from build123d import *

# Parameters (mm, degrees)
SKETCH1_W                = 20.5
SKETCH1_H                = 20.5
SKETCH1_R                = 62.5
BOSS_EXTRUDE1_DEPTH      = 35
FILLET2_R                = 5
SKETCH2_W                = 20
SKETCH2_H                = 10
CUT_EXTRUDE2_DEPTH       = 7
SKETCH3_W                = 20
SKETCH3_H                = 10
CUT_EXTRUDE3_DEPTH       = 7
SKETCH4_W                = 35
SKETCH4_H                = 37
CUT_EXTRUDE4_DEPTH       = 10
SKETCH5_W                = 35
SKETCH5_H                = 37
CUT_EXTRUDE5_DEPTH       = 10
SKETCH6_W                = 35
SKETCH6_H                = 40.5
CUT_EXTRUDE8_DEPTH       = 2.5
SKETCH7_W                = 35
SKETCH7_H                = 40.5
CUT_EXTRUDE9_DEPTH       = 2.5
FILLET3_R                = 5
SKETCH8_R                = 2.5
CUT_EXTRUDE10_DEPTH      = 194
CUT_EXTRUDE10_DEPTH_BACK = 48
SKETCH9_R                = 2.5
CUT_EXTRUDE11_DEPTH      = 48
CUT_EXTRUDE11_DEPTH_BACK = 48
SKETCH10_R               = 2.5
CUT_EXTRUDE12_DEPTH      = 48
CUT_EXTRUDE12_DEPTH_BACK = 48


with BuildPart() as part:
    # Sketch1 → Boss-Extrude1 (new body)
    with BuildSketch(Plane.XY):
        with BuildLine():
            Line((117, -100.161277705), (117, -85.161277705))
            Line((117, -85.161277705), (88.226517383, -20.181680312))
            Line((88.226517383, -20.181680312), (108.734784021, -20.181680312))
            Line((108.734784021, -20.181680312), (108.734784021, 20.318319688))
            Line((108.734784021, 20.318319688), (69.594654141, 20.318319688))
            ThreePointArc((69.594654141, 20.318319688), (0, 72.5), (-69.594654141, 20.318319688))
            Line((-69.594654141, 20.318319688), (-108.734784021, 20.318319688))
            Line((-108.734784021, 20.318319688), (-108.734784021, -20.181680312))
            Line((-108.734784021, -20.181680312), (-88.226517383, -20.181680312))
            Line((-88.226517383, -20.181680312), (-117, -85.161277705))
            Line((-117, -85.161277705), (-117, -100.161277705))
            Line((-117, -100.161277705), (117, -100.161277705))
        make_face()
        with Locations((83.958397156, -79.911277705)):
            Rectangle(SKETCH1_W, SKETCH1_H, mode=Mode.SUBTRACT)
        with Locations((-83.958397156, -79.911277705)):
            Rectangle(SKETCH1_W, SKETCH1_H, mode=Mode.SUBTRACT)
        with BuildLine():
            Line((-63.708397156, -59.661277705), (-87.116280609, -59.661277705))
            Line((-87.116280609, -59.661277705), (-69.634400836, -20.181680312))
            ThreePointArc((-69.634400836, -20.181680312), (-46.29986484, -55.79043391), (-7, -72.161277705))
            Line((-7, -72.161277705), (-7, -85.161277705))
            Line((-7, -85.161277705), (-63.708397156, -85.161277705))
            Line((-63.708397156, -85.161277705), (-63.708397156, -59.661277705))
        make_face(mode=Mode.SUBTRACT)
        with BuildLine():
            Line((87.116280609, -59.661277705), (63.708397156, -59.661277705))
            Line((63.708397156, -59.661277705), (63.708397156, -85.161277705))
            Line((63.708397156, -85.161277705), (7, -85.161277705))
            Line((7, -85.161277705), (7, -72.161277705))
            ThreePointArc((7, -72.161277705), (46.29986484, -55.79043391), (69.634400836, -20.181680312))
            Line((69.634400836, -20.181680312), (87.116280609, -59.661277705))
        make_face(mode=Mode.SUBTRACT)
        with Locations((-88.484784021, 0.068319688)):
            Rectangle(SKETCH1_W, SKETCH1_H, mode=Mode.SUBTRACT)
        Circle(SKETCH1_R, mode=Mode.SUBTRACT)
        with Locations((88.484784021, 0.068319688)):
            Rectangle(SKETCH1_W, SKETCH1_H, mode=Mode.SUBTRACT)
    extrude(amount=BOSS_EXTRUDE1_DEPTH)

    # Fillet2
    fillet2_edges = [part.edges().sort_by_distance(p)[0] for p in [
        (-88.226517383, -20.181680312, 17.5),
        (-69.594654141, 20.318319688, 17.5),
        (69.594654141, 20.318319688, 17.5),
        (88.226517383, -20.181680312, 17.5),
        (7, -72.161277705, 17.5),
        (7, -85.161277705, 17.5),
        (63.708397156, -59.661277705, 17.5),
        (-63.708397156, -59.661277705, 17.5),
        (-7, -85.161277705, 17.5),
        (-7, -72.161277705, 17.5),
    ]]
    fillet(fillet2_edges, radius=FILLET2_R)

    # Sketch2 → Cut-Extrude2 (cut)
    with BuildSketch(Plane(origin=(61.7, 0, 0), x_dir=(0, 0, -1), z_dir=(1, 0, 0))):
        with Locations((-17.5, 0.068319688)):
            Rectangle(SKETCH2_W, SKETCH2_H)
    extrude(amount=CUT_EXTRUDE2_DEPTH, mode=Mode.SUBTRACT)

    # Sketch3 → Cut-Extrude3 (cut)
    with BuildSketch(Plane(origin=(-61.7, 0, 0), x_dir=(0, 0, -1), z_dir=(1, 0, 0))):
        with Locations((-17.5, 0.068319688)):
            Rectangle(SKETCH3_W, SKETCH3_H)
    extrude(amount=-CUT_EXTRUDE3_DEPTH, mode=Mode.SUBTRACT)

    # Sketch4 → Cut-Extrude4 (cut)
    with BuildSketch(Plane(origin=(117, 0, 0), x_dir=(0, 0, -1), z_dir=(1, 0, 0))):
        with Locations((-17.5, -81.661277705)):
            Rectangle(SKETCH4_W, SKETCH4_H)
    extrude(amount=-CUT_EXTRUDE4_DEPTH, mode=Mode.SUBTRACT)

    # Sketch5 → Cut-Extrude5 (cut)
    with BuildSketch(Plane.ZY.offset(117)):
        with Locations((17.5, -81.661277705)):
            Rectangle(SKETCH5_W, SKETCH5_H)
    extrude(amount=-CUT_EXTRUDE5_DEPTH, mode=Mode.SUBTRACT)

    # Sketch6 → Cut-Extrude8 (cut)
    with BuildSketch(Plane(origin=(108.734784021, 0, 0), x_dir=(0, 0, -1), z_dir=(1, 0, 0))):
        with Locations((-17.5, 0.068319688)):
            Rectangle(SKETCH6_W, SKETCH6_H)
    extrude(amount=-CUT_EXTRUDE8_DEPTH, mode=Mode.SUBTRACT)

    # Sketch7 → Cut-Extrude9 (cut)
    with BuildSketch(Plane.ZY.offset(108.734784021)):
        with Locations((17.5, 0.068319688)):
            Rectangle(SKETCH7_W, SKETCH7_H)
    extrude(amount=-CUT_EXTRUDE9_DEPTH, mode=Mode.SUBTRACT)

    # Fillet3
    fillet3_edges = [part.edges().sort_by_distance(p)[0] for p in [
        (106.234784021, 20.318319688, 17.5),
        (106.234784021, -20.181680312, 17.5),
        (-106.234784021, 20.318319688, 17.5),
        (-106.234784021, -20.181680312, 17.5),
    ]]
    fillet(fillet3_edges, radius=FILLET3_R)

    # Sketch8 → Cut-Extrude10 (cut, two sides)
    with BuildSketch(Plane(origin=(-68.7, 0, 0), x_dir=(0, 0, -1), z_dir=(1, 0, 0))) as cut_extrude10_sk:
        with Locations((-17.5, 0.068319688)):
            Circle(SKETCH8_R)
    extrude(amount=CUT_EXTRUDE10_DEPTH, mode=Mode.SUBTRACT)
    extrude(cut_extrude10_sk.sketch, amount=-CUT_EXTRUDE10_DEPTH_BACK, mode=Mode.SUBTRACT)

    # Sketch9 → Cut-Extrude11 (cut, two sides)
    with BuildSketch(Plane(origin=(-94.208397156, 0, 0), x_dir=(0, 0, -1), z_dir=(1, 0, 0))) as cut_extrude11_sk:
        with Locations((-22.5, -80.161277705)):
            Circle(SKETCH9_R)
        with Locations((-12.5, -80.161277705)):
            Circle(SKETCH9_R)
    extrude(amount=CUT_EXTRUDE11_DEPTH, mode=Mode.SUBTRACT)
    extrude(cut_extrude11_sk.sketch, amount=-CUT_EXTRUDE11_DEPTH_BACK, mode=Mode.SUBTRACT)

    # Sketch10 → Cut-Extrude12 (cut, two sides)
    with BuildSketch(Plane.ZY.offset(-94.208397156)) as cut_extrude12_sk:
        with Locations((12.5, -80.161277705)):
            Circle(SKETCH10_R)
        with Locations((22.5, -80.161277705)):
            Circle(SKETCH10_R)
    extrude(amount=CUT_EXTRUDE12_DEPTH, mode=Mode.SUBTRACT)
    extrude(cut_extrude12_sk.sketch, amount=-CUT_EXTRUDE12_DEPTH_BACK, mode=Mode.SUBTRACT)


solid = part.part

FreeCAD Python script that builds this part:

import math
import FreeCAD as App
import Part
import Sketcher
from FreeCAD import Vector


def edges_at(feature, points):
    """Names of the edges that pass closest to the given points."""
    edges = feature.Shape.Edges
    near = lambda p: min(range(len(edges)), key=lambda i: edges[i].distToShape(Part.Vertex(*p))[0])
    return sorted({f"Edge{near(p) + 1}" for p in points})


def add_polygon(sketch, points):
    """Adds a closed chain of lines whose ends are joined by coincident constraints."""
    first, n = sketch.GeometryCount, len(points)
    for a, b in zip(points, points[1:] + points[:1]):
        sketch.addGeometry(Part.LineSegment(App.Vector(*a, 0), App.Vector(*b, 0)), False)
    for i in range(n):
        sketch.addConstraint(Sketcher.Constraint("Coincident", first + i, 2, first + (i + 1) % n, 1))

doc = App.newDocument("Part")
params = doc.addObject("Spreadsheet::Sheet", "Params")
for row, (alias, value) in enumerate([
    ("sketch1_diameter", "125 mm"),
    ("sketch1_radius", "72.5 mm"),
    ("sketch1_width", "234 mm"),
    ("sketch1_height", "15 mm"),
    ("sketch1_height2", "13 mm"),
    ("pad1_length", "35 mm"),
    ("fillet_radius", "5 mm"),
    ("sketch2_width", "10 mm"),
    ("sketch2_height", "20 mm"),
    ("pocket1_length", "7 mm"),
    ("sketch3_width", "10 mm"),
    ("sketch3_height", "20 mm"),
    ("pocket2_length", "7 mm"),
    ("sketch4_width", "37 mm"),
    ("sketch4_height", "35 mm"),
    ("pocket3_length", "10 mm"),
    ("sketch5_width", "37 mm"),
    ("sketch5_height", "35 mm"),
    ("pocket4_length", "10 mm"),
    ("sketch6_height", "35 mm"),
    ("sketch6_width", "40.5 mm"),
    ("pocket5_length", "2.5 mm"),
    ("sketch7_height", "35 mm"),
    ("sketch7_width", "40.5 mm"),
    ("pocket6_length", "2.5 mm"),
    ("fillet2_radius", "5 mm"),
    ("sketch8_diameter", "5 mm"),
    ("sketch9_diameter", "5 mm"),
    ("pocket8_length", "48 mm"),
    ("pocket8_length2", "48 mm"),
    ("sketch10_diameter", "5 mm"),
    ("pocket9_length", "48 mm"),
    ("pocket9_length2", "48 mm"),
], start=1):
    params.set(f"A{row}", alias)
    params.set(f"B{row}", "=" + value)
    params.setAlias(f"B{row}", alias)

body = doc.addObject("PartDesign::Body", "Body")

# Sketch on XY plane
sketch1 = body.newObject("Sketcher::SketchObject", "Sketch")
sketch1.AttachmentSupport = (doc.getObject("XY_Plane"), [""])
sketch1.MapMode = "FlatFace"
sketch1.addGeometry(Part.LineSegment(Vector(117, -100, 0), Vector(117, -85, 0)), False)  # 0
sketch1.addGeometry(Part.LineSegment(Vector(117, -85, 0), Vector(88, -20, 0)), False)  # 1
sketch1.addGeometry(Part.LineSegment(Vector(88, -20, 0), Vector(109, -20, 0)), False)  # 2
sketch1.addGeometry(Part.LineSegment(Vector(109, -20, 0), Vector(109, 20, 0)), False)  # 3
sketch1.addGeometry(Part.LineSegment(Vector(109, 20, 0), Vector(70, 20, 0)), False)  # 4
sketch1.addGeometry(Part.ArcOfCircle(Part.Circle(Vector(0, 0, 0), Vector(0, 0, 1), 72), math.radians(16), math.radians(164)), False)  # 5
sketch1.addGeometry(Part.LineSegment(Vector(-70, 20, 0), Vector(-109, 20, 0)), False)  # 6
sketch1.addGeometry(Part.LineSegment(Vector(-109, 20, 0), Vector(-109, -20, 0)), False)  # 7
sketch1.addGeometry(Part.LineSegment(Vector(-109, -20, 0), Vector(-88, -20, 0)), False)  # 8
sketch1.addGeometry(Part.LineSegment(Vector(-88, -20, 0), Vector(-117, -85, 0)), False)  # 9
sketch1.addGeometry(Part.LineSegment(Vector(-117, -85, 0), Vector(-117, -100, 0)), False)  # 10
sketch1.addGeometry(Part.LineSegment(Vector(-117, -100, 0), Vector(117, -100, 0)), False)  # 11
add_polygon(sketch1, [(-74, -90), (-94, -90), (-94, -70), (-74, -70)])  # lines 12-15
sketch1.addGeometry(Part.LineSegment(Vector(-64, -85, 0), Vector(-64, -60, 0)), False)  # 16
sketch1.addGeometry(Part.LineSegment(Vector(-64, -60, 0), Vector(-87, -60, 0)), False)  # 17
sketch1.addGeometry(Part.LineSegment(Vector(-87, -60, 0), Vector(-70, -20, 0)), False)  # 18
sketch1.addGeometry(Part.ArcOfCircle(Part.Circle(Vector(0, 0, 0), Vector(0, 0, 1), 72), math.radians(-164), math.radians(-96)), False)  # 19
sketch1.addGeometry(Part.LineSegment(Vector(-7, -72, 0), Vector(-7, -85, 0)), False)  # 20
sketch1.addGeometry(Part.LineSegment(Vector(-7, -85, 0), Vector(-64, -85, 0)), False)  # 21
sketch1.addGeometry(Part.LineSegment(Vector(70, -20, 0), Vector(87, -60, 0)), False)  # 22
sketch1.addGeometry(Part.LineSegment(Vector(87, -60, 0), Vector(64, -60, 0)), False)  # 23
sketch1.addGeometry(Part.LineSegment(Vector(64, -60, 0), Vector(64, -85, 0)), False)  # 24
sketch1.addGeometry(Part.LineSegment(Vector(64, -85, 0), Vector(7, -85, 0)), False)  # 25
sketch1.addGeometry(Part.LineSegment(Vector(7, -85, 0), Vector(7, -72, 0)), False)  # 26
sketch1.addGeometry(Part.ArcOfCircle(Part.Circle(Vector(0, 0, 0), Vector(0, 0, 1), 72), math.radians(-84), math.radians(-16)), False)  # 27
add_polygon(sketch1, [(94, -90), (74, -90), (74, -70), (94, -70)])  # lines 28-31
add_polygon(sketch1, [(-78, -10), (-99, -10), (-99, 10), (-78, 10)])  # lines 32-35
sketch1.addGeometry(Part.Circle(Vector(0, 0, 0), Vector(0, 0, 1), 62), False)  # 36
add_polygon(sketch1, [(99, -10), (78, -10), (78, 10), (99, 10)])  # lines 37-40
sketch1.addConstraint([
    Sketcher.Constraint("Coincident", 0, 2, 1, 1),
    Sketcher.Constraint("Coincident", 1, 2, 2, 1),
    Sketcher.Constraint("Coincident", 2, 2, 3, 1),
    Sketcher.Constraint("Coincident", 3, 2, 4, 1),
    Sketcher.Constraint("Coincident", 4, 2, 5, 1),
    Sketcher.Constraint("Coincident", 5, 2, 6, 1),
    Sketcher.Constraint("Coincident", 6, 2, 7, 1),
    Sketcher.Constraint("Coincident", 7, 2, 8, 1),
    Sketcher.Constraint("Coincident", 8, 2, 9, 1),
    Sketcher.Constraint("Coincident", 9, 2, 10, 1),
    Sketcher.Constraint("Coincident", 10, 2, 11, 1),
    Sketcher.Constraint("Coincident", 11, 2, 0, 1),
    Sketcher.Constraint("Coincident", 16, 2, 17, 1),
    Sketcher.Constraint("Coincident", 17, 2, 18, 1),
    Sketcher.Constraint("Coincident", 18, 2, 19, 1),
    Sketcher.Constraint("Coincident", 19, 2, 20, 1),
    Sketcher.Constraint("Coincident", 20, 2, 21, 1),
    Sketcher.Constraint("Coincident", 21, 2, 16, 1),
    Sketcher.Constraint("Coincident", 22, 2, 23, 1),
    Sketcher.Constraint("Coincident", 23, 2, 24, 1),
    Sketcher.Constraint("Coincident", 24, 2, 25, 1),
    Sketcher.Constraint("Coincident", 25, 2, 26, 1),
    Sketcher.Constraint("Coincident", 26, 2, 27, 1),
    Sketcher.Constraint("Coincident", 27, 2, 22, 1),
    Sketcher.Constraint("Vertical", 0),
    Sketcher.Constraint("Horizontal", 2),
    Sketcher.Constraint("Vertical", 3),
    Sketcher.Constraint("Horizontal", 4),
    Sketcher.Constraint("Horizontal", 6),
    Sketcher.Constraint("Vertical", 7),
    Sketcher.Constraint("Horizontal", 8),
    Sketcher.Constraint("Vertical", 10),
    Sketcher.Constraint("Horizontal", 11),
    Sketcher.Constraint("Horizontal", 12),
    Sketcher.Constraint("Vertical", 13),
    Sketcher.Constraint("Horizontal", 14),
    Sketcher.Constraint("Vertical", 15),
    Sketcher.Constraint("Vertical", 16),
    Sketcher.Constraint("Horizontal", 17),
    Sketcher.Constraint("Vertical", 20),
    Sketcher.Constraint("Horizontal", 21),
    Sketcher.Constraint("Horizontal", 23),
    Sketcher.Constraint("Vertical", 24),
    Sketcher.Constraint("Horizontal", 25),
    Sketcher.Constraint("Vertical", 26),
    Sketcher.Constraint("Horizontal", 28),
    Sketcher.Constraint("Vertical", 29),
    Sketcher.Constraint("Horizontal", 30),
    Sketcher.Constraint("Vertical", 31),
    Sketcher.Constraint("Horizontal", 32),
    Sketcher.Constraint("Vertical", 33),
    Sketcher.Constraint("Horizontal", 34),
    Sketcher.Constraint("Vertical", 35),
    Sketcher.Constraint("Horizontal", 37),
    Sketcher.Constraint("Vertical", 38),
    Sketcher.Constraint("Horizontal", 39),
    Sketcher.Constraint("Vertical", 40),
    Sketcher.Constraint("Coincident", 5, 3, -1, 1),
    Sketcher.Constraint("Coincident", 19, 3, -1, 1),
    Sketcher.Constraint("Coincident", 27, 3, -1, 1),
    Sketcher.Constraint("Coincident", 36, 3, -1, 1),
    Sketcher.Constraint("Equal", 5, 19),
    Sketcher.Constraint("Equal", 19, 27),
    Sketcher.Constraint("Symmetric", 3, 2, 6, 2, -2),
    Sketcher.Constraint("Symmetric", 1, 2, 8, 2, -2),
    Sketcher.Constraint("Symmetric", 0, 2, 9, 2, -2),
    Sketcher.Constraint("Symmetric", 17, 2, 22, 2, -2),
    Sketcher.Constraint("Symmetric", 21, 2, 24, 2, -2),
    Sketcher.Constraint("Symmetric", 15, 2, 28, 2, -2),
    Sketcher.Constraint("Symmetric", 13, 2, 30, 2, -2),
    Sketcher.Constraint("Symmetric", 35, 2, 37, 2, -2),
    Sketcher.Constraint("Symmetric", 33, 2, 39, 2, -2),
    Sketcher.Constraint("Parallel", 9, 18),
    Sketcher.Constraint("Parallel", 1, 22),
    Sketcher.Constraint("Horizontal", 8, 2, 18, 2),
    Sketcher.Constraint("Horizontal", 9, 2, 20, 2),
    Sketcher.Constraint("Horizontal", 19, 2, 26, 2),
    Sketcher.Constraint("Equal", 30, 32),
    Sketcher.Constraint("Equal", 39, 13),
    Sketcher.Constraint("Equal", 31, 33),
    Sketcher.Constraint("Diameter", 36, 125.0),
    Sketcher.Constraint("Radius", 5, 72.5),
    Sketcher.Constraint("DistanceX", 11, 1, 11, 2, 234.0),
    Sketcher.Constraint("DistanceY", 0, 1, 0, 2, 15.0),
    Sketcher.Constraint("DistanceY", 20, 2, 20, 1, 13.0),
    Sketcher.Constraint("DistanceX", 12, 2, 12, 1, 20.5),
    Sketcher.Constraint("DistanceY", 3, 1, 3, 2, 40.5),
    Sketcher.Constraint("DistanceY", 16, 1, 16, 2, 25.5),
    Sketcher.Constraint("DistanceX", 19, 2, -1, 1, 7.0),
    Sketcher.Constraint("DistanceY", 12, 2, 9, 2, 5.0),
    Sketcher.Constraint("DistanceX", 14, 2, 16, 2, 10.0),
    Sketcher.Constraint("DistanceX", 7, 2, 32, 2, 10.0),
    Sketcher.Constraint("DistanceY", 7, 2, 32, 2, 10.0),
    Sketcher.Constraint("DistanceX", 4, 2, 4, 1, 39.14013),
    Sketcher.Constraint("DistanceX", 18, 2, -1, 1, 69.634401),
    Sketcher.Constraint("Distance", 1, 71.065191),
    Sketcher.Constraint("DistanceX", 17, 2, 17, 1, 23.407883),
])
sketch1.setExpression("Constraints[96]", "Params.sketch1_diameter")
sketch1.setExpression("Constraints[97]", "Params.sketch1_radius")
sketch1.setExpression("Constraints[98]", "Params.sketch1_width")
sketch1.setExpression("Constraints[99]", "Params.sketch1_height")
sketch1.setExpression("Constraints[100]", "Params.sketch1_height2")
pad1 = body.newObject("PartDesign::Pad", "Pad")
pad1.Profile = sketch1
pad1.setExpression("Length", "Params.pad1_length")
doc.recompute()

fillet = body.newObject("PartDesign::Fillet", "Fillet")
fillet.Base = (pad1, edges_at(pad1, [
    (-88.227, -20.182, 17.5),
    (-69.595, 20.318, 17.5),
    (69.595, 20.318, 17.5),
    (88.227, -20.182, 17.5),
    (7, -72.161, 17.5),
    (7, -85.161, 17.5),
    (63.708, -59.661, 17.5),
    (-63.708, -59.661, 17.5),
    (-7, -85.161, 17.5),
    (-7, -72.161, 17.5),
]))
fillet.setExpression("Radius", "Params.fillet_radius")

# Sketch on YZ plane
sketch2 = body.newObject("Sketcher::SketchObject", "Sketch001")
sketch2.AttachmentSupport = (doc.getObject("YZ_Plane"), [""])
sketch2.MapMode = "FlatFace"
sketch2.AttachmentOffset = App.Placement(Vector(0, 0, 61.7), App.Rotation())
add_polygon(sketch2, [(5, 28), (-5, 28), (-5, 8), (5, 8)])  # lines 0-3
sketch2.addConstraint([
    Sketcher.Constraint("Horizontal", 0),
    Sketcher.Constraint("Vertical", 1),
    Sketcher.Constraint("Horizontal", 2),
    Sketcher.Constraint("Vertical", 3),
    Sketcher.Constraint("DistanceX", 0, 2, 0, 1, 10.0),
    Sketcher.Constraint("DistanceY", 1, 2, 1, 1, 20.0),
    Sketcher.Constraint("DistanceY", -1, 1, 0, 2, 27.5),
    Sketcher.Constraint("DistanceX", 0, 2, -1, 1, 4.93168),
])
sketch2.setExpression("Constraints[8]", "Params.sketch2_width")
sketch2.setExpression("Constraints[9]", "Params.sketch2_height")
pocket1 = body.newObject("PartDesign::Pocket", "Pocket")
pocket1.Profile = sketch2
pocket1.setExpression("Length", "Params.pocket1_length")
pocket1.Reversed = True

# Sketch on YZ plane
sketch3 = body.newObject("Sketcher::SketchObject", "Sketch002")
sketch3.AttachmentSupport = (doc.getObject("YZ_Plane"), [""])
sketch3.MapMode = "FlatFace"
sketch3.AttachmentOffset = App.Placement(Vector(0, 0, -61.7), App.Rotation())
add_polygon(sketch3, [(5, 28), (-5, 28), (-5, 8), (5, 8)])  # lines 0-3
sketch3.addConstraint([
    Sketcher.Constraint("Horizontal", 0),
    Sketcher.Constraint("Vertical", 1),
    Sketcher.Constraint("Horizontal", 2),
    Sketcher.Constraint("Vertical", 3),
    Sketcher.Constraint("DistanceX", 0, 2, 0, 1, 10.0),
    Sketcher.Constraint("DistanceY", 1, 2, 1, 1, 20.0),
    Sketcher.Constraint("DistanceY", -1, 1, 0, 2, 27.5),
    Sketcher.Constraint("DistanceX", 0, 2, -1, 1, 4.93168),
])
sketch3.setExpression("Constraints[8]", "Params.sketch3_width")
sketch3.setExpression("Constraints[9]", "Params.sketch3_height")
pocket2 = body.newObject("PartDesign::Pocket", "Pocket001")
pocket2.Profile = sketch3
pocket2.setExpression("Length", "Params.pocket2_length")

# Sketch on YZ plane
sketch4 = body.newObject("Sketcher::SketchObject", "Sketch003")
sketch4.AttachmentSupport = (doc.getObject("YZ_Plane"), [""])
sketch4.MapMode = "FlatFace"
sketch4.AttachmentOffset = App.Placement(Vector(0, 0, 117), App.Rotation())
add_polygon(sketch4, [(-63, 35), (-100, 35), (-100, 0), (-63, 0)])  # lines 0-3
sketch4.addConstraint([
    Sketcher.Constraint("Horizontal", 0),
    Sketcher.Constraint("Vertical", 1),
    Sketcher.Constraint("Horizontal", 2),
    Sketcher.Constraint("Vertical", 3),
    Sketcher.Constraint("PointOnObject", 1, 2, -1),
    Sketcher.Constraint("DistanceX", 0, 2, 0, 1, 37.0),
    Sketcher.Constraint("DistanceY", 1, 2, 1, 1, 35.0),
    Sketcher.Constraint("DistanceX", 0, 2, -1, 1, 100.161278),
])
sketch4.setExpression("Constraints[9]", "Params.sketch4_width")
sketch4.setExpression("Constraints[10]", "Params.sketch4_height")
pocket3 = body.newObject("PartDesign::Pocket", "Pocket002")
pocket3.Profile = sketch4
pocket3.setExpression("Length", "Params.pocket3_length")

# Sketch on YZ plane
sketch5 = body.newObject("Sketcher::SketchObject", "Sketch004")
sketch5.AttachmentSupport = (doc.getObject("YZ_Plane"), [""])
sketch5.MapMode = "FlatFace"
sketch5.AttachmentOffset = App.Placement(Vector(0, 0, -117), App.Rotation())
add_polygon(sketch5, [(-63, 0), (-100, 0), (-100, 35), (-63, 35)])  # lines 0-3
sketch5.addConstraint([
    Sketcher.Constraint("Horizontal", 0),
    Sketcher.Constraint("Vertical", 1),
    Sketcher.Constraint("Horizontal", 2),
    Sketcher.Constraint("Vertical", 3),
    Sketcher.Constraint("PointOnObject", 0, 2, -1),
    Sketcher.Constraint("DistanceX", 0, 2, 0, 1, 37.0),
    Sketcher.Constraint("DistanceY", 1, 1, 1, 2, 35.0),
    Sketcher.Constraint("DistanceX", 0, 2, -1, 1, 100.161278),
])
sketch5.setExpression("Constraints[9]", "Params.sketch5_width")
sketch5.setExpression("Constraints[10]", "Params.sketch5_height")
pocket4 = body.newObject("PartDesign::Pocket", "Pocket003")
pocket4.Profile = sketch5
pocket4.setExpression("Length", "Params.pocket4_length")
pocket4.Reversed = True

# Sketch on YZ plane
sketch6 = body.newObject("Sketcher::SketchObject", "Sketch005")
sketch6.AttachmentSupport = (doc.getObject("YZ_Plane"), [""])
sketch6.MapMode = "FlatFace"
sketch6.AttachmentOffset = App.Placement(Vector(0, 0, 108.734784), App.Rotation())
add_polygon(sketch6, [(20, 35), (-20, 35), (-20, 0), (20, 0)])  # lines 0-3
sketch6.addConstraint([
    Sketcher.Constraint("Horizontal", 0),
    Sketcher.Constraint("Vertical", 1),
    Sketcher.Constraint("Horizontal", 2),
    Sketcher.Constraint("Vertical", 3),
    Sketcher.Constraint("PointOnObject", 1, 2, -1),
    Sketcher.Constraint("DistanceY", 1, 2, 1, 1, 35.0),
    Sketcher.Constraint("DistanceX", 0, 2, 0, 1, 40.5),
    Sketcher.Constraint("DistanceX", 0, 2, -1, 1, 20.18168),
])
sketch6.setExpression("Constraints[9]", "Params.sketch6_height")
sketch6.setExpression("Constraints[10]", "Params.sketch6_width")
pocket5 = body.newObject("PartDesign::Pocket", "Pocket004")
pocket5.Profile = sketch6
pocket5.setExpression("Length", "Params.pocket5_length")

# Sketch on YZ plane
sketch7 = body.newObject("Sketcher::SketchObject", "Sketch006")
sketch7.AttachmentSupport = (doc.getObject("YZ_Plane"), [""])
sketch7.MapMode = "FlatFace"
sketch7.AttachmentOffset = App.Placement(Vector(0, 0, -108.734784), App.Rotation())
add_polygon(sketch7, [(20, 0), (-20, 0), (-20, 35), (20, 35)])  # lines 0-3
sketch7.addConstraint([
    Sketcher.Constraint("Horizontal", 0),
    Sketcher.Constraint("Vertical", 1),
    Sketcher.Constraint("Horizontal", 2),
    Sketcher.Constraint("Vertical", 3),
    Sketcher.Constraint("PointOnObject", 0, 2, -1),
    Sketcher.Constraint("DistanceY", 1, 1, 1, 2, 35.0),
    Sketcher.Constraint("DistanceX", 0, 2, 0, 1, 40.5),
    Sketcher.Constraint("DistanceX", 0, 2, -1, 1, 20.18168),
])
sketch7.setExpression("Constraints[9]", "Params.sketch7_height")
sketch7.setExpression("Constraints[10]", "Params.sketch7_width")
pocket6 = body.newObject("PartDesign::Pocket", "Pocket005")
pocket6.Profile = sketch7
pocket6.setExpression("Length", "Params.pocket6_length")
pocket6.Reversed = True
doc.recompute()

fillet2 = body.newObject("PartDesign::Fillet", "Fillet001")
fillet2.Base = (pocket6, edges_at(pocket6, [
    (106.235, 20.318, 17.5),
    (106.235, -20.182, 17.5),
    (-106.235, 20.318, 17.5),
    (-106.235, -20.182, 17.5),
]))
fillet2.setExpression("Radius", "Params.fillet2_radius")

# Sketch on YZ plane
sketch8 = body.newObject("Sketcher::SketchObject", "Sketch007")
sketch8.AttachmentSupport = (doc.getObject("YZ_Plane"), [""])
sketch8.MapMode = "FlatFace"
sketch8.AttachmentOffset = App.Placement(Vector(0, 0, -68.7), App.Rotation())
sketch8.addGeometry(Part.Circle(Vector(0.1, 17.5, 0), Vector(0, 0, 1), 2.5), False)
sketch8.addConstraint([
    Sketcher.Constraint("Diameter", 0, 5.0),
    Sketcher.Constraint("DistanceY", -1, 1, 0, 3, 17.5),
    Sketcher.Constraint("DistanceX", -1, 1, 0, 3, 0.06832),
])
sketch8.setExpression("Constraints[0]", "Params.sketch8_diameter")
pocket7 = body.newObject("PartDesign::Pocket", "Pocket006")
pocket7.Profile = sketch8
pocket7.Type = "ThroughAll"
pocket7.Midplane = True

# Sketch on YZ plane
sketch9 = body.newObject("Sketcher::SketchObject", "Sketch008")
sketch9.AttachmentSupport = (doc.getObject("YZ_Plane"), [""])
sketch9.MapMode = "FlatFace"
sketch9.AttachmentOffset = App.Placement(Vector(0, 0, -94.208397), App.Rotation())
sketch9.addGeometry([
    Part.Circle(Vector(-80.2, 22.5, 0), Vector(0, 0, 1), 2.5),
    Part.Circle(Vector(-80.2, 12.5, 0), Vector(0, 0, 1), 2.5),
], False)
sketch9.addConstraint([
    Sketcher.Constraint("Equal", 0, 1),
    Sketcher.Constraint("Vertical", 0, 3, 1, 3),
    Sketcher.Constraint("Diameter", 0, 5.0),
    Sketcher.Constraint("DistanceY", 1, 3, 0, 3, 10.0),
    Sketcher.Constraint("DistanceY", -1, 1, 0, 3, 22.5),
    Sketcher.Constraint("DistanceX", 0, 3, -1, 1, 80.161278),
])
sketch9.setExpression("Constraints[2]", "Params.sketch9_diameter")
pocket8 = body.newObject("PartDesign::Pocket", "Pocket007")
pocket8.Profile = sketch9
pocket8.Type = "TwoLengths"
pocket8.setExpression("Length", "Params.pocket8_length")
pocket8.setExpression("Length2", "Params.pocket8_length2")
pocket8.Reversed = True

# Sketch on YZ plane
sketch10 = body.newObject("Sketcher::SketchObject", "Sketch009")
sketch10.AttachmentSupport = (doc.getObject("YZ_Plane"), [""])
sketch10.MapMode = "FlatFace"
sketch10.AttachmentOffset = App.Placement(Vector(0, 0, 94.208397), App.Rotation())
sketch10.addGeometry([
    Part.Circle(Vector(-80.2, 12.5, 0), Vector(0, 0, 1), 2.5),
    Part.Circle(Vector(-80.2, 22.5, 0), Vector(0, 0, 1), 2.5),
], False)
sketch10.addConstraint([
    Sketcher.Constraint("Equal", 0, 1),
    Sketcher.Constraint("Vertical", 0, 3, 1, 3),
    Sketcher.Constraint("Diameter", 0, 5.0),
    Sketcher.Constraint("DistanceY", 0, 3, 1, 3, 10.0),
    Sketcher.Constraint("DistanceY", -1, 1, 0, 3, 12.5),
    Sketcher.Constraint("DistanceX", 0, 3, -1, 1, 80.161278),
])
sketch10.setExpression("Constraints[2]", "Params.sketch10_diameter")
pocket9 = body.newObject("PartDesign::Pocket", "Pocket008")
pocket9.Profile = sketch10
pocket9.Type = "TwoLengths"
pocket9.setExpression("Length", "Params.pocket9_length")
pocket9.setExpression("Length2", "Params.pocket9_length2")

doc.recompute()
